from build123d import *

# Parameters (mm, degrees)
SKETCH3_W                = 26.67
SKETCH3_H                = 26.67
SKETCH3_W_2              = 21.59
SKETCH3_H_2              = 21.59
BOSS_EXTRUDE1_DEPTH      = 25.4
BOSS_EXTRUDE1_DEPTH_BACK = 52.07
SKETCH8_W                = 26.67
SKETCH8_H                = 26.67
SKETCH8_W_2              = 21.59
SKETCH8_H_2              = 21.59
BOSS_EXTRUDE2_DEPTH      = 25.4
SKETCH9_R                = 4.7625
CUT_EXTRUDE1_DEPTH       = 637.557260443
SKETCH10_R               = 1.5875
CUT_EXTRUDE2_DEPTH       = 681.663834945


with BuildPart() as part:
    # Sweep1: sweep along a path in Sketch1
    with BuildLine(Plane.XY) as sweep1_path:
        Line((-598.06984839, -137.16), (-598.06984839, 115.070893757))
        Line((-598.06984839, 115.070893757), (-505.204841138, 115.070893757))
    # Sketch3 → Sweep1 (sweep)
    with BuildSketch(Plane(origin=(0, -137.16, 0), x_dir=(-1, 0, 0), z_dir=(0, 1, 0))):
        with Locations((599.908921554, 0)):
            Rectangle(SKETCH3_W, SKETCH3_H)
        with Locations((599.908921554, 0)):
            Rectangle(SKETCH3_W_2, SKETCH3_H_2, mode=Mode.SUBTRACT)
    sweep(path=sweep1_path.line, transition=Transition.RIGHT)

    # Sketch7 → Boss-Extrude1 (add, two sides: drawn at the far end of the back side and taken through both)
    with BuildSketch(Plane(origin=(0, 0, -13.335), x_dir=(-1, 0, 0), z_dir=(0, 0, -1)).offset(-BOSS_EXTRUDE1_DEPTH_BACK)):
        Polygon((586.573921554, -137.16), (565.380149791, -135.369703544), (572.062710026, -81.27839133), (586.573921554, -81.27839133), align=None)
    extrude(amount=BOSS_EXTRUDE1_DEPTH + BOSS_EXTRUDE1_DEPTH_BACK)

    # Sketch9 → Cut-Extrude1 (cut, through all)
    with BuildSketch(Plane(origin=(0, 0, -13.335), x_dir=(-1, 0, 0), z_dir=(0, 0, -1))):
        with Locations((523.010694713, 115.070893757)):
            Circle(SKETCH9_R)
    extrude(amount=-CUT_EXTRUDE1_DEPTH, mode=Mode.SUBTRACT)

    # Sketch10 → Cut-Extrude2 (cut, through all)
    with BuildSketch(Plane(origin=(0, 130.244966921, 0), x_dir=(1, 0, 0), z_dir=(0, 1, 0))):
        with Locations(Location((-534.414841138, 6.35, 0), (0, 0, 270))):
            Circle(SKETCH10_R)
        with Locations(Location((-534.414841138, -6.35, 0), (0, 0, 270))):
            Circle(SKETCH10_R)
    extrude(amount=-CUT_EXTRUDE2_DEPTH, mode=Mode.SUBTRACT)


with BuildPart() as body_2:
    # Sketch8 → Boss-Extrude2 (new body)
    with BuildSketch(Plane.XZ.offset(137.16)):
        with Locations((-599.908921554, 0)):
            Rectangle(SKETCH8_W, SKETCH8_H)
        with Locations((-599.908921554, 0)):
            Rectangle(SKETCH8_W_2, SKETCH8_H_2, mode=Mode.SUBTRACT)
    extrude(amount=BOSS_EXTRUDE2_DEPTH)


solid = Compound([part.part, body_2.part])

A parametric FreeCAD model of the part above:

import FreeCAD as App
import Part
import Sketcher
Q = App.Units.Quantity


def add_polygon(sketch, points):
    """Adds a closed chain of lines whose ends are joined by coincident constraints."""
    first, n = sketch.GeometryCount, len(points)
    for a, b in zip(points, points[1:] + points[:1]):
        sketch.addGeometry(Part.LineSegment(App.Vector(*a, 0), App.Vector(*b, 0)), False)
    for i in range(n):
        sketch.addConstraint(Sketcher.Constraint("Coincident", first + i, 2, first + (i + 1) % n, 1))

doc = App.newDocument("Part")
params = doc.addObject("Spreadsheet::Sheet", "Params")
for row, (alias, value) in enumerate([
    ("sketch1_width", "1.05 in"),
    ("sketch1_width2", "0.85 in"),
    ("pad1_length", "1 in"),
    ("pad1_length2", "2.05 in"),
    ("sketch4_diameter", "0.375 in"),
    ("sketch5_diameter", "0.125 in"),
    ("sketch6_width", "1.05 in"),
    ("sketch6_width2", "0.85 in"),
    ("pad2_length", "1 in"),
], start=1):
    params.set(f"A{row}", alias)
    params.set(f"B{row}", "=" + value)
    params.setAlias(f"B{row}", alias)

body = doc.addObject("PartDesign::Body", "Body")

sketch1 = doc.addObject("Sketcher::SketchObject", "Sketch")
body.addObject(sketch1)
sketch1.AttachmentSupport = (doc.XZ_Plane, [""])
sketch1.MapMode = "FlatFace"
sketch1.AttachmentOffset = App.Placement(App.Vector(0, 0, 5.4 * 25.4), App.Rotation())
add_polygon(sketch1, [(-587, 13), (-587, -13), (-613, -13), (-613, 13)])
add_polygon(sketch1, [(-611, -11), (-589, -11), (-589, 11), (-611, 11)])
sketch1.addConstraint([
    Sketcher.Constraint("Vertical", 0),
    Sketcher.Constraint("Horizontal", 1),
    Sketcher.Constraint("Vertical", 2),
    Sketcher.Constraint("Horizontal", 3),
    Sketcher.Constraint("Horizontal", 4),
    Sketcher.Constraint("Vertical", 5),
    Sketcher.Constraint("Horizontal", 6),
    Sketcher.Constraint("Vertical", 7),
    Sketcher.Constraint("Equal", 3, 0),
    Sketcher.Constraint("Equal", 6, 5),
    Sketcher.Constraint("DistanceX", 1, 2, 1, 1, Q("1.05 in")),
    Sketcher.Constraint("DistanceX", 4, 1, 4, 2, Q("0.85 in")),
    Sketcher.Constraint("DistanceX", 4, 2, 0, 2, Q("0.1 in")),
    Sketcher.Constraint("DistanceY", 0, 2, 4, 2, Q("0.1 in")),
    Sketcher.Constraint("DistanceY", 0, 2, -1, 1, Q("0.525 in")),
    Sketcher.Constraint("DistanceX", 0, 2, -1, 1, 586.573922),
])
sketch1.setExpression("Constraints[18]", "Params.sketch1_width")
sketch1.setExpression("Constraints[19]", "Params.sketch1_width2")

sketch2 = doc.addObject("Sketcher::SketchObject", "Sketch001")
body.addObject(sketch2)
sketch2.AttachmentSupport = (doc.XY_Plane, [""])
sketch2.MapMode = "FlatFace"
sketch2.addGeometry([
    Part.LineSegment(App.Vector(-598, -137, 0), App.Vector(-598, 115, 0)),
    Part.LineSegment(App.Vector(-598, 115, 0), App.Vector(-505, 115, 0)),
], False)
sketch2.addConstraint([
    Sketcher.Constraint("Coincident", 0, 2, 1, 1),
    Sketcher.Constraint("Vertical", 0),
    Sketcher.Constraint("Horizontal", 1),
    Sketcher.Constraint("DistanceY", 0, 1, -1, 1, Q("5.4 in")),
    Sketcher.Constraint("DistanceX", 1, 1, 1, 2, 92.865007),
    Sketcher.Constraint("DistanceY", 0, 1, 0, 2, 252.230894),
    Sketcher.Constraint("DistanceX", 0, 1, -1, 1, 598.069848),
])
doc.recompute()

additivepipe = doc.addObject("PartDesign::AdditivePipe", "AdditivePipe")
body.addObject(additivepipe)
additivepipe.Profile = sketch1
additivepipe.Spine = (sketch2, ["Edge1", "Edge2"])
additivepipe.Transition = "Right corner"

sketch3 = doc.addObject("Sketcher::SketchObject", "Sketch002")
body.addObject(sketch3)
sketch3.AttachmentSupport = (doc.XY_Plane, [""])
sketch3.MapMode = "FlatFace"
sketch3.AttachmentOffset = App.Placement(App.Vector(0, 0, -0.525 * 25.4), App.Rotation())
add_polygon(sketch3, [(-565, -135), (-587, -137), (-587, -81), (-572, -81)])
sketch3.addConstraint([
    Sketcher.Constraint("Vertical", 1),
    Sketcher.Constraint("Horizontal", 2),
    Sketcher.Constraint("DistanceY", 0, 2, -1, 1, Q("5.4 in")),
    Sketcher.Constraint("DistanceX", 2, 1, 2, 2, 14.511212),
    Sketcher.Constraint("DistanceY", 1, 1, 1, 2, 55.881609),
    Sketcher.Constraint("Distance", 3, 54.502538),
    Sketcher.Constraint("DistanceX", 0, 2, -1, 1, 586.573922),
    Sketcher.Constraint("DistanceX", 3, 2, -1, 1, 565.38015),
])
pad1 = doc.addObject("PartDesign::Pad", "Pad")
body.addObject(pad1)
pad1.Profile = sketch3
pad1.Type = "TwoLengths"
pad1.setExpression("Length", "Params.pad1_length")
pad1.setExpression("Length2", "Params.pad1_length2")
pad1.Reversed = True

sketch4 = doc.addObject("Sketcher::SketchObject", "Sketch003")
body.addObject(sketch4)
sketch4.AttachmentSupport = (doc.XY_Plane, [""])
sketch4.MapMode = "FlatFace"
sketch4.AttachmentOffset = App.Placement(App.Vector(0, 0, -0.525 * 25.4), App.Rotation())
sketch4.addGeometry(Part.Circle(App.Vector(-523, 115.1, 0), App.Vector(0, 0, 1), 4.8), False)
sketch4.addConstraint([
    Sketcher.Constraint("Diameter", 0, Q("0.375 in")),
    Sketcher.Constraint("DistanceX", 0, 3, -1, 1, 523.010695),
    Sketcher.Constraint("DistanceY", -1, 1, 0, 3, 115.070894),
])
sketch4.setExpression("Constraints[0]", "Params.sketch4_diameter")
pocket1 = doc.addObject("PartDesign::Pocket", "Pocket")
body.addObject(pocket1)
pocket1.Profile = sketch4
pocket1.Type = "ThroughAll"
pocket1.Reversed = True

sketch5 = doc.addObject("Sketcher::SketchObject", "Sketch004")
body.addObject(sketch5)
sketch5.AttachmentSupport = (doc.XZ_Plane, [""])
sketch5.MapMode = "FlatFace"
sketch5.AttachmentOffset = App.Placement(App.Vector(0, 0, -130.244967), App.Rotation())
sketch5.addGeometry([
    Part.Circle(App.Vector(-534.4, -6.3, 0), App.Vector(0, 0, 1), 1.6),
    Part.Circle(App.Vector(-534.4, 6.3, 0), App.Vector(0, 0, 1), 1.6),
], False)
sketch5.addConstraint([
    Sketcher.Constraint("Equal", 0, 1),
    Sketcher.Constraint("Symmetric", 0, 3, 1, 3, -1),
    Sketcher.Constraint("Diameter", 0, Q("0.125 in")),
    Sketcher.Constraint("DistanceY", 0, 3, 1, 3, Q("0.5 in")),
    Sketcher.Constraint("DistanceX", 0, 3, -1, 1, 534.414841),
])
sketch5.setExpression("Constraints[2]", "Params.sketch5_diameter")
pocket2 = doc.addObject("PartDesign::Pocket", "Pocket001")
body.addObject(pocket2)
pocket2.Profile = sketch5
pocket2.Type = "ThroughAll"
pocket2.Reversed = True
body2 = doc.addObject("PartDesign::Body", "Body001")

sketch6 = doc.addObject("Sketcher::SketchObject", "Sketch005")
body2.addObject(sketch6)
sketch6.AttachmentSupport = (doc.getObject("XZ_Plane001"), [""])
sketch6.MapMode = "FlatFace"
sketch6.AttachmentOffset = App.Placement(App.Vector(0, 0, 5.4 * 25.4), App.Rotation())
add_polygon(sketch6, [(-613, 13), (-613, -13), (-587, -13), (-587, 13)])
add_polygon(sketch6, [(-589, -11), (-611, -11), (-611, 11), (-589, 11)])
sketch6.addConstraint([
    Sketcher.Constraint("Vertical", 0),
    Sketcher.Constraint("Horizontal", 1),
    Sketcher.Constraint("Vertical", 2),
    Sketcher.Constraint("Horizontal", 3),
    Sketcher.Constraint("Horizontal", 4),
    Sketcher.Constraint("Vertical", 5),
    Sketcher.Constraint("Horizontal", 6),
    Sketcher.Constraint("Vertical", 7),
    Sketcher.Constraint("Equal", 3, 0),
    Sketcher.Constraint("Equal", 6, 5),
    Sketcher.Constraint("DistanceX", 1, 1, 1, 2, Q("1.05 in")),
    Sketcher.Constraint("DistanceX", 4, 2, 4, 1, Q("0.85 in")),
    Sketcher.Constraint("DistanceX", 0, 2, 4, 2, Q("0.1 in")),
    Sketcher.Constraint("DistanceY", 0, 2, 4, 2, Q("0.1 in")),
    Sketcher.Constraint("DistanceY", 0, 2, -1, 1, Q("0.525 in")),
    Sketcher.Constraint("DistanceX", 0, 2, -1, 1, 613.243922),
])
sketch6.setExpression("Constraints[18]", "Params.sketch6_width")
sketch6.setExpression("Constraints[19]", "Params.sketch6_width2")
pad2 = doc.addObject("PartDesign::Pad", "Pad001")
body2.addObject(pad2)
pad2.Profile = sketch6
pad2.setExpression("Length", "Params.pad2_length")

doc.recompute()
